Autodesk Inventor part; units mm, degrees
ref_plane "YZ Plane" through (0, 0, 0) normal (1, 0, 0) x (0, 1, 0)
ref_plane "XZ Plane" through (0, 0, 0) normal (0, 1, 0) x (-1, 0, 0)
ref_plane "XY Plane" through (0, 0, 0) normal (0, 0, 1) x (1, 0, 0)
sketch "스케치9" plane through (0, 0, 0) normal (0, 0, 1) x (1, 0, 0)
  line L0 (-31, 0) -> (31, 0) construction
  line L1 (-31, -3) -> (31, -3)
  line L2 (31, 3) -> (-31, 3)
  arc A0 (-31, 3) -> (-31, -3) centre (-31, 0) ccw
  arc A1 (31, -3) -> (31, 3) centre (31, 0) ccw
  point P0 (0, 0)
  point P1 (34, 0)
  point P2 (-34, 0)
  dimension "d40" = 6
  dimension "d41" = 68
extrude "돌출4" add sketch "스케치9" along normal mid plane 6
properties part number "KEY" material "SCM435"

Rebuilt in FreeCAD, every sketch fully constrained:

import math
import FreeCAD as App
import Part
import Sketcher
from FreeCAD import Vector
Q = App.Units.Quantity

doc = App.newDocument("Part")
params = doc.addObject("Spreadsheet::Sheet", "Params")
for row, (alias, value) in enumerate([
    ("sketch1_radius", "3 mm"),
    ("sketch1_width", "62 mm"),
    ("pad1_length", "6 mm"),
], start=1):
    params.set(f"A{row}", alias)
    params.set(f"B{row}", "=" + value)
    params.setAlias(f"B{row}", alias)

body = doc.addObject("PartDesign::Body", "Body")

# Sketch on XY plane
sketch1 = body.newObject("Sketcher::SketchObject", "Sketch")
sketch1.AttachmentSupport = (doc.getObject("XY_Plane"), [""])
sketch1.MapMode = "FlatFace"
sketch1.addGeometry([
    Part.ArcOfCircle(Part.Circle(Vector(-31, 0, 0), Vector(0, 0, 1), 3), math.radians(90), math.radians(270)),
    Part.LineSegment(Vector(-31, -3, 0), Vector(31, -3, 0)),
    Part.ArcOfCircle(Part.Circle(Vector(31, 0, 0), Vector(0, 0, 1), 3), math.radians(-90), math.radians(90)),
    Part.LineSegment(Vector(31, 3, 0), Vector(-31, 3, 0)),
], False)
sketch1.addConstraint([
    Sketcher.Constraint("Tangent", 0, 2, 1, 1),
    Sketcher.Constraint("Tangent", 1, 2, 2, 1),
    Sketcher.Constraint("Tangent", 2, 2, 3, 1),
    Sketcher.Constraint("Tangent", 3, 2, 0, 1),
    Sketcher.Constraint("Horizontal", 1),
    Sketcher.Constraint("Horizontal", 3),
    Sketcher.Constraint("Symmetric", 0, 3, 2, 3, -1, 1),
    Sketcher.Constraint("Radius", 0, Q("3 mm")),
    Sketcher.Constraint("DistanceX", 1, 1, 1, 2, Q("62 mm")),
])
sketch1.setExpression("Constraints[7]", "Params.sketch1_radius")
sketch1.setExpression("Constraints[8]", "Params.sketch1_width")
pad1 = body.newObject("PartDesign::Pad", "Pad")
pad1.Profile = sketch1
pad1.setExpression("Length", "Params.pad1_length")
pad1.Midplane = True

doc.recompute()
